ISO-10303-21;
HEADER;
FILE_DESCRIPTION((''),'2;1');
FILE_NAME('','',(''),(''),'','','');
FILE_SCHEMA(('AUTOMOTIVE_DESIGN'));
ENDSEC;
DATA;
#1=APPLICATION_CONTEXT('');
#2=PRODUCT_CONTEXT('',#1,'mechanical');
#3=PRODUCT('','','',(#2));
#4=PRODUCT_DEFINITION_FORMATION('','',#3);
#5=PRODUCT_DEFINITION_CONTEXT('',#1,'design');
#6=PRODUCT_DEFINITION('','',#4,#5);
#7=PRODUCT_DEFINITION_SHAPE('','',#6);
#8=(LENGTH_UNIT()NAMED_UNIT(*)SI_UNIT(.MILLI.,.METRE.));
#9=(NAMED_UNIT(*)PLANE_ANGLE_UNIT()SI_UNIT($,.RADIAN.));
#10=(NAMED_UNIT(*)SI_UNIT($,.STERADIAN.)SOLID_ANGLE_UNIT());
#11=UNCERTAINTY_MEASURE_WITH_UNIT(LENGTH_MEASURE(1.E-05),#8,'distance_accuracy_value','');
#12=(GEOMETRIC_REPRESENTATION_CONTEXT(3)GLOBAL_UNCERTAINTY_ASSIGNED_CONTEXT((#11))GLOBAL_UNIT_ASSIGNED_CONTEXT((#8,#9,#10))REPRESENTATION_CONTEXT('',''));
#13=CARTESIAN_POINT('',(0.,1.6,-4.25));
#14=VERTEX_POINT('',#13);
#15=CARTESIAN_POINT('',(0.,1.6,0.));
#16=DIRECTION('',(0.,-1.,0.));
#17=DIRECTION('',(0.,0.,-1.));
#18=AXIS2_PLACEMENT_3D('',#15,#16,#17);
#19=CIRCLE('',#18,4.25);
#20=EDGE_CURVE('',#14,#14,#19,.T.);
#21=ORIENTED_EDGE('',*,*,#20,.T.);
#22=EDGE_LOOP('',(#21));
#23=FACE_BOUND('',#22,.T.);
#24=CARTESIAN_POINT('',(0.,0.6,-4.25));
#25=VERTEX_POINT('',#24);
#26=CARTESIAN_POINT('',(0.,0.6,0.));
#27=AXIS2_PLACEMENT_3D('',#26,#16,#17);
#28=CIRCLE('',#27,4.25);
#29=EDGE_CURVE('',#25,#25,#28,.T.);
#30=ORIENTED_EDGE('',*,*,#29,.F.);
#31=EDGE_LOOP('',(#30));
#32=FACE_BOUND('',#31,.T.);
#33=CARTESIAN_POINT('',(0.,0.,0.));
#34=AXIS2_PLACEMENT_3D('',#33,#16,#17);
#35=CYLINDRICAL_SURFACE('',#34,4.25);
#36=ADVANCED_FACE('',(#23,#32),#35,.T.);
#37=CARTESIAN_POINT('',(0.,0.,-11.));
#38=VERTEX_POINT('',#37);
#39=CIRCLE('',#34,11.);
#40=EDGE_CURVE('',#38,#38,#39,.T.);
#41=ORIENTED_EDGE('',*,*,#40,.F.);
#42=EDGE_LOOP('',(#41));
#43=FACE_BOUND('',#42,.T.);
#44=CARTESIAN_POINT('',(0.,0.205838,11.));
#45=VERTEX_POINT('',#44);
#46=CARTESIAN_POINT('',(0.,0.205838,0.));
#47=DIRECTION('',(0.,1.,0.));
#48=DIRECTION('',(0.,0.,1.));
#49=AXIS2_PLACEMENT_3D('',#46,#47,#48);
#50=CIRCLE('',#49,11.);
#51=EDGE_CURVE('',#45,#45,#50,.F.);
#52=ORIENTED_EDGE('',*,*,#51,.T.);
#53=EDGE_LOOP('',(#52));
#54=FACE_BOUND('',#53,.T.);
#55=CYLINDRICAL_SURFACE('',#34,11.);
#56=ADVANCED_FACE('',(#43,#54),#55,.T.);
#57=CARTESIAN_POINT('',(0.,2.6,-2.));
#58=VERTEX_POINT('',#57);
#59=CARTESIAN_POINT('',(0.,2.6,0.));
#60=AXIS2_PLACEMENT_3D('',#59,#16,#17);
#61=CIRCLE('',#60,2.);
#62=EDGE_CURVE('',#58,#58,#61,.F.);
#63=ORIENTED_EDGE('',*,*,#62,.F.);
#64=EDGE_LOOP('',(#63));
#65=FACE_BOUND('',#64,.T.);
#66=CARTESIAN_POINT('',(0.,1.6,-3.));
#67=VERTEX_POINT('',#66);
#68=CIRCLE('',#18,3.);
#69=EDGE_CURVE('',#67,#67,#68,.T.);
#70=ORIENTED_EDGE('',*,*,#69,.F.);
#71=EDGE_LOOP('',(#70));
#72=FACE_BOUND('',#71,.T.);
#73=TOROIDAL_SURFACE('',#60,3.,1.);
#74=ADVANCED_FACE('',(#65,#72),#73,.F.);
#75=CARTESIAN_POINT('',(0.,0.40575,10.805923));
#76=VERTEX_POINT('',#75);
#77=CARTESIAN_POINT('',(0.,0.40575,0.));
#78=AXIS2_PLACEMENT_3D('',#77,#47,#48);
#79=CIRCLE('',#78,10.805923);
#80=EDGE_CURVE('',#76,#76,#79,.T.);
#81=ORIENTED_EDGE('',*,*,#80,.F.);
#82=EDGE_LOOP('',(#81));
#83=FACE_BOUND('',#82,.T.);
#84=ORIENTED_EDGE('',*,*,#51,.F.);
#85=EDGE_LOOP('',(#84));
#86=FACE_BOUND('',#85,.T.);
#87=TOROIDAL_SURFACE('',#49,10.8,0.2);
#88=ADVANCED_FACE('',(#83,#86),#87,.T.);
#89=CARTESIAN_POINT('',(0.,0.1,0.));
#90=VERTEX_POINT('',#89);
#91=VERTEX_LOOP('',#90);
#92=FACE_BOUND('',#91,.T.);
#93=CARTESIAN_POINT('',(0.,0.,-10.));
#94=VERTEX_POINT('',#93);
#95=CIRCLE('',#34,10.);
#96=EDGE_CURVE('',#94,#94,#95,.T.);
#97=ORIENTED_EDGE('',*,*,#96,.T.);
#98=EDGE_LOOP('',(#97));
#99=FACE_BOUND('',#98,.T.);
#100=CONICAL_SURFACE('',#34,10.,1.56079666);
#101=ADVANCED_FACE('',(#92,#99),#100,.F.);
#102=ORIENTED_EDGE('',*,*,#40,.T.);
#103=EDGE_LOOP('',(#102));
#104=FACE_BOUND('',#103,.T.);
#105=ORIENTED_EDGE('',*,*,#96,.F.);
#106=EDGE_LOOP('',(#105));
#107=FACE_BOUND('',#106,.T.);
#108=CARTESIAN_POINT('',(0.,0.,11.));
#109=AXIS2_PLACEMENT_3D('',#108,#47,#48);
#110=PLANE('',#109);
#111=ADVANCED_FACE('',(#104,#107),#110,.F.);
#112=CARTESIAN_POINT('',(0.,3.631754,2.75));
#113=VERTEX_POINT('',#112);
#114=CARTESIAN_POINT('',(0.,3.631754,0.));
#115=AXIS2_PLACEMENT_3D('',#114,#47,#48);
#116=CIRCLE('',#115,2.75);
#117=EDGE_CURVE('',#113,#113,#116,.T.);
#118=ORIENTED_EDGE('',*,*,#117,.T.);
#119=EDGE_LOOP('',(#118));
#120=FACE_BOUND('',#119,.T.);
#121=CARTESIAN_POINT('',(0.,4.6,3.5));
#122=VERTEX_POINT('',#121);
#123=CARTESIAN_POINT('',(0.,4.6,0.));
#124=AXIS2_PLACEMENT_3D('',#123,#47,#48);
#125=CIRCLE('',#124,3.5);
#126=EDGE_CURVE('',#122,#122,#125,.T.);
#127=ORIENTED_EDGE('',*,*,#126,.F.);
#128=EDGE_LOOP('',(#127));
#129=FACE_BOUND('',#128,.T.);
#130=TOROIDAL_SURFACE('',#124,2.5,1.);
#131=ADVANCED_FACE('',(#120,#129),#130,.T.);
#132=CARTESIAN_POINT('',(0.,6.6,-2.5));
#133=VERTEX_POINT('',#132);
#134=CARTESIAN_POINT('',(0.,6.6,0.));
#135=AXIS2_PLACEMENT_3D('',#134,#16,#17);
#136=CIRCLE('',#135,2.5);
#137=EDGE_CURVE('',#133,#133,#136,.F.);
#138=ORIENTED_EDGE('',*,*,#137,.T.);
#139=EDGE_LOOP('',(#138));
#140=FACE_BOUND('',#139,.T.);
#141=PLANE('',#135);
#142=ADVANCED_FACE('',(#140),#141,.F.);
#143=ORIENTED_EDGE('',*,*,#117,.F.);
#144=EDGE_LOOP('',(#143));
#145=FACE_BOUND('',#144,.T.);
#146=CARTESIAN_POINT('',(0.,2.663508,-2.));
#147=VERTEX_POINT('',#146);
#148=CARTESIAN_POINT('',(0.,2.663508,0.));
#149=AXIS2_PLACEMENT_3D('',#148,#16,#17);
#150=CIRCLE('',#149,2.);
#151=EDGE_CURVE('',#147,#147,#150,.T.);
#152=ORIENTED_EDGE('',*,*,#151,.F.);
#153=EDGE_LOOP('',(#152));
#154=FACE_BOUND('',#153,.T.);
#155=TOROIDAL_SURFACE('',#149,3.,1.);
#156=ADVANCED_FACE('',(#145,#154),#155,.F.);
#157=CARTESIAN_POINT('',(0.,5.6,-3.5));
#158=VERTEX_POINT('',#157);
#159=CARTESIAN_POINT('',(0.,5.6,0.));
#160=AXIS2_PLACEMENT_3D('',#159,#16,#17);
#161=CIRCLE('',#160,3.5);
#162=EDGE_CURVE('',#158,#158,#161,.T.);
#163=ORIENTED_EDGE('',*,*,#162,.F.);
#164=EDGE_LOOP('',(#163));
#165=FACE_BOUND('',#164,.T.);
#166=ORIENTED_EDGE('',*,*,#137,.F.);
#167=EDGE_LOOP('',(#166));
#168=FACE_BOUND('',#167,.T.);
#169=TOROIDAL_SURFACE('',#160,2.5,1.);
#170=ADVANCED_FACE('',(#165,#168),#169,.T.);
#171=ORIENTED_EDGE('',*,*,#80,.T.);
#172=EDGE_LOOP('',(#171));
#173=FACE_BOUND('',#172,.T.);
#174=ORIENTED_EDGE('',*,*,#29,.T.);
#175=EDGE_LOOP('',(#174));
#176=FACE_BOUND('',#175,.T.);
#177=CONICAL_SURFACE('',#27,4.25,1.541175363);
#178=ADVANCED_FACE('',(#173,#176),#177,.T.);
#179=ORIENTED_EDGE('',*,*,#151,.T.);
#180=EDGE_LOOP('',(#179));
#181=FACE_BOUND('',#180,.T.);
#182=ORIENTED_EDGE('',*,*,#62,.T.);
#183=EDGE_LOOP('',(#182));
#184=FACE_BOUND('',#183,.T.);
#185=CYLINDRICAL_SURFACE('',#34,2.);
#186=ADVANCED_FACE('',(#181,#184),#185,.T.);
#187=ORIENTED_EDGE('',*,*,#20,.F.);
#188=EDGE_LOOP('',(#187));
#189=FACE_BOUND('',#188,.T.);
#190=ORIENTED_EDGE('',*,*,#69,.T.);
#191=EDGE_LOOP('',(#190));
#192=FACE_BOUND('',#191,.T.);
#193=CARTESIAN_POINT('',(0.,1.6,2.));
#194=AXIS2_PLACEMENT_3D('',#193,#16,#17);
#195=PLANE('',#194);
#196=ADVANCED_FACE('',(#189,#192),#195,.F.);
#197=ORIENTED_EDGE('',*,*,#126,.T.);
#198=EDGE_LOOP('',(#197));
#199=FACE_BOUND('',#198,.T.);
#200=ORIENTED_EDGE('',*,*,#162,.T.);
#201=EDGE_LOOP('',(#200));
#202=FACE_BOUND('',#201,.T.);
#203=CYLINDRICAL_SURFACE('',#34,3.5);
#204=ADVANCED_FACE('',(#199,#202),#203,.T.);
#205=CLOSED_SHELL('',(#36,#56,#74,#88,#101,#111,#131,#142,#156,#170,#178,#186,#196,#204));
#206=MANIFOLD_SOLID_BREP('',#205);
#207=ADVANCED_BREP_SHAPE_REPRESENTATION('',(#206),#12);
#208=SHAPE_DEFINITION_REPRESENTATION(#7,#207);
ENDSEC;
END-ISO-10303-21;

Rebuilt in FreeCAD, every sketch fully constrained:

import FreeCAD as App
import Part
import Sketcher

V = App.Vector
Q = App.Units.Quantity


def edges_at(feature, points):
    """Names of the edges that pass closest to the given points."""
    edges = feature.Shape.Edges
    near = lambda p: min(range(len(edges)), key=lambda i: edges[i].distToShape(Part.Vertex(*p))[0])
    return sorted({f"Edge{near(p) + 1}" for p in points})

doc = App.newDocument("Part")
body = doc.addObject("PartDesign::Body", "Body")

# Sketch on YZ plane
sketch1 = body.newObject("Sketcher::SketchObject", "Sketch")
sketch1.AttachmentSupport = (doc.getObject("YZ_Plane"), [""])
sketch1.MapMode = "FlatFace"
sketch1.addGeometry([
    Part.LineSegment(V(0, 11, 0), V(0, 10, 0)),  # 0
    Part.LineSegment(V(0, 10, 0), V(0.1, 0, 0)),  # 1
    Part.LineSegment(V(0.1, 0, 0), V(6.6, 0, 0)),  # 2
    Part.LineSegment(V(6.6, 0, 0), V(6.6, 3.5, 0)),  # 3
    Part.LineSegment(V(6.6, 3.5, 0), V(3.6, 3.5, 0)),  # 4
    Part.LineSegment(V(3.6, 3.5, 0), V(3.6, 2, 0)),  # 5
    Part.LineSegment(V(3.6, 2, 0), V(1.6, 2, 0)),  # 6
    Part.LineSegment(V(1.6, 2, 0), V(1.6, 4.25, 0)),  # 7
    Part.LineSegment(V(1.6, 4.25, 0), V(0.6, 4.25, 0)),  # 8
    Part.LineSegment(V(0.6, 4.25, 0), V(0.4, 11, 0)),  # 9
    Part.LineSegment(V(0.4, 11, 0), V(0, 11, 0)),  # 10
], False)
sketch1.addConstraint([
    Sketcher.Constraint("Coincident", 0, 2, 1, 1),
    Sketcher.Constraint("Coincident", 1, 2, 2, 1),
    Sketcher.Constraint("Coincident", 2, 2, 3, 1),
    Sketcher.Constraint("Coincident", 3, 2, 4, 1),
    Sketcher.Constraint("Coincident", 4, 2, 5, 1),
    Sketcher.Constraint("Coincident", 5, 2, 6, 1),
    Sketcher.Constraint("Coincident", 6, 2, 7, 1),
    Sketcher.Constraint("Coincident", 7, 2, 8, 1),
    Sketcher.Constraint("Coincident", 8, 2, 9, 1),
    Sketcher.Constraint("Coincident", 9, 2, 10, 1),
    Sketcher.Constraint("Coincident", 10, 2, 0, 1),
    Sketcher.Constraint("Vertical", 0),
    Sketcher.Constraint("Horizontal", 2),
    Sketcher.Constraint("Vertical", 3),
    Sketcher.Constraint("Horizontal", 4),
    Sketcher.Constraint("Vertical", 5),
    Sketcher.Constraint("Horizontal", 6),
    Sketcher.Constraint("Vertical", 7),
    Sketcher.Constraint("Horizontal", 8),
    Sketcher.Constraint("Horizontal", 10),
    Sketcher.Constraint("PointOnObject", 0, 2, -2),
    Sketcher.Constraint("PointOnObject", 1, 2, -1),
    Sketcher.Constraint("Equal", 8, 0),
    Sketcher.Constraint("DistanceX", 4, 2, 4, 1, Q("3 mm")),
    Sketcher.Constraint("DistanceX", 6, 2, 6, 1, Q("2 mm")),
    Sketcher.Constraint("DistanceX", 8, 2, 8, 1, Q("1 mm")),
    Sketcher.Constraint("DistanceX", 2, 1, 2, 2, Q("6.5 mm")),
    Sketcher.Constraint("DistanceX", 10, 2, 10, 1, Q("0.4 mm")),
    Sketcher.Constraint("DistanceY", 3, 1, 3, 2, Q("3.5 mm")),
    Sketcher.Constraint("DistanceY", 5, 2, 5, 1, Q("1.5 mm")),
    Sketcher.Constraint("DistanceY", -1, 1, 0, 2, Q("10 mm")),
    Sketcher.Constraint("DistanceY", 7, 1, 7, 2, Q("2.25 mm")),
    Sketcher.Constraint("DistanceX", -1, 1, 1, 2, Q("0.1 mm")),
])
revolution = body.newObject("PartDesign::Revolution", "Revolution")
revolution.Profile = sketch1
revolution.ReferenceAxis = (sketch1, ["H_Axis"])
revolution.Angle = 360
doc.recompute()

fillet = body.newObject("PartDesign::Fillet", "Fillet")
fillet.Base = (revolution, edges_at(revolution, [(0, 6.6, 3.5), (0, 3.6, 3.5)]))
fillet.Radius = 1
doc.recompute()

fillet2 = body.newObject("PartDesign::Fillet", "Fillet001")
fillet2.Base = (fillet, edges_at(fillet, [(0, 1.6, 2), (0, 3.6, 2)]))
fillet2.Radius = 1
doc.recompute()

fillet3 = body.newObject("PartDesign::Fillet", "Fillet002")
fillet3.Base = (fillet2, edges_at(fillet2, [(0, 0.4, 11)]))
fillet3.Radius = 0.2

doc.recompute()
